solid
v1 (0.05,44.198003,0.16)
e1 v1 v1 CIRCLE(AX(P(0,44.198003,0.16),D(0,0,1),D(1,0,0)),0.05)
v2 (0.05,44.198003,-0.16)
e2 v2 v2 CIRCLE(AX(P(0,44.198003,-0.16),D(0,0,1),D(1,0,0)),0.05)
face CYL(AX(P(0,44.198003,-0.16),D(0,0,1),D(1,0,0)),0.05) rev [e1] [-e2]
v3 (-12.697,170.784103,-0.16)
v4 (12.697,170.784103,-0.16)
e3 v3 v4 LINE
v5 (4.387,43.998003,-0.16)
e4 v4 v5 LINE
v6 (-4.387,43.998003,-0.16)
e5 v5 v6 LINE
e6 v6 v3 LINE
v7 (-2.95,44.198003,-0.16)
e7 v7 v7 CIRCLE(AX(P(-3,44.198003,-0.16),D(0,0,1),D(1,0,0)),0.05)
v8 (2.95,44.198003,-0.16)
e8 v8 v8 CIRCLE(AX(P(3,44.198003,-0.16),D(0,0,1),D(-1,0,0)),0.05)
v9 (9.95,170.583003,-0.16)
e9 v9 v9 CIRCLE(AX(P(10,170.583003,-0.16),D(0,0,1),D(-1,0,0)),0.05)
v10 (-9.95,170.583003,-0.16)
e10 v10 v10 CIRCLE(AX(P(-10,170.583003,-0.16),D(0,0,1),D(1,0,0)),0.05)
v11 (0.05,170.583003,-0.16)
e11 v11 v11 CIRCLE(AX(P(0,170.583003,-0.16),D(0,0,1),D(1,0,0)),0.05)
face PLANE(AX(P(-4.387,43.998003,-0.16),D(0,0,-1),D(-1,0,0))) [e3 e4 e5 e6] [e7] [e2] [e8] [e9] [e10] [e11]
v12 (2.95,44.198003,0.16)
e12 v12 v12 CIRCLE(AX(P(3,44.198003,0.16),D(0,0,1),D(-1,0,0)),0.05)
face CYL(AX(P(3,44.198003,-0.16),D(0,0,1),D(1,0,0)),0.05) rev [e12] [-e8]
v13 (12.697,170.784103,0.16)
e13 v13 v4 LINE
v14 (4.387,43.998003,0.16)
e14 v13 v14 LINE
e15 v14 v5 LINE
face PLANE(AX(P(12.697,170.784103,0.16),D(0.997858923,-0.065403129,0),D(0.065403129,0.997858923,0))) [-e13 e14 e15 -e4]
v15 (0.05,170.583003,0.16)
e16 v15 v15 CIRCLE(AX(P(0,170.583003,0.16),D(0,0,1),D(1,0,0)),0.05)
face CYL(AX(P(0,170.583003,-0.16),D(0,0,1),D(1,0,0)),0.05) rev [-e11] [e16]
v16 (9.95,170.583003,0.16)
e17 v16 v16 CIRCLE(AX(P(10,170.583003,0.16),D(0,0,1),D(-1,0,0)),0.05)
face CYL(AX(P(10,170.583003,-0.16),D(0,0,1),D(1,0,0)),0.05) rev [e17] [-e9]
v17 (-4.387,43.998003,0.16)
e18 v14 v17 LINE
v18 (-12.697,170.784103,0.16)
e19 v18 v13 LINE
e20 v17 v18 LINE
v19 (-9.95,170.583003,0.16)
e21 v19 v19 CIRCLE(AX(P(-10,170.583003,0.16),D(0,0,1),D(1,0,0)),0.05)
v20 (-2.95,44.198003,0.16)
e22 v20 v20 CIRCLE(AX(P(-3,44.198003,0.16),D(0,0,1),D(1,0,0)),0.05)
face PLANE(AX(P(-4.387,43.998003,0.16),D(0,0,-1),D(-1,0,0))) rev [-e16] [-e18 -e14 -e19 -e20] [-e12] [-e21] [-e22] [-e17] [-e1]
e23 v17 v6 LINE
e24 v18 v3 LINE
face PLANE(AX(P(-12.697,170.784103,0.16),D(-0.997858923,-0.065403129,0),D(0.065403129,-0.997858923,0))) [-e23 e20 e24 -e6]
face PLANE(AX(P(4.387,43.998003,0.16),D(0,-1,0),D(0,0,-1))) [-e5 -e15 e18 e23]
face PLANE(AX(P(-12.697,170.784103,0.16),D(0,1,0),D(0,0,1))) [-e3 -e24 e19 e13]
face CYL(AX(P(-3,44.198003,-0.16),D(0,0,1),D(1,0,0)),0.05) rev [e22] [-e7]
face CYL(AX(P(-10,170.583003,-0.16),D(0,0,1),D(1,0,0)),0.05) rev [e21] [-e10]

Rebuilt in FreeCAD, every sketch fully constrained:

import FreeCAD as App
import Part
import Sketcher

V = App.Vector
Q = App.Units.Quantity

doc = App.newDocument("Part")
params = doc.addObject("Spreadsheet::Sheet", "Params")
for row, (alias, value) in enumerate([
    ("pad1_length", "0.32 mm"),
    ("sketch2_diameter", "0.1 mm"),
], start=1):
    params.set(f"A{row}", alias)
    params.set(f"B{row}", "=" + value)
    params.setAlias(f"B{row}", alias)

body = doc.addObject("PartDesign::Body", "Body")

sketch1 = body.newObject("Sketcher::SketchObject", "Sketch")
sketch1.AttachmentSupport = (doc.getObject("XY_Plane"), [""])
sketch1.MapMode = "FlatFace"
sketch1.addGeometry([
    Part.LineSegment(V(4.387, 43.998003, 0), V(-4.387, 43.998003, 0)),
    Part.LineSegment(V(-4.387, 43.998003, 0), V(-12.697, 170.784103, 0)),
    Part.LineSegment(V(-12.697, 170.784103, 0), V(12.697, 170.784103, 0)),
    Part.LineSegment(V(12.697, 170.784103, 0), V(4.387, 43.998003, 0)),
], False)
sketch1.addConstraint([
    Sketcher.Constraint("Coincident", 0, 2, 1, 1),
    Sketcher.Constraint("Coincident", 1, 2, 2, 1),
    Sketcher.Constraint("Coincident", 2, 2, 3, 1),
    Sketcher.Constraint("Coincident", 3, 2, 0, 1),
    Sketcher.Constraint("Horizontal", 0),
    Sketcher.Constraint("Horizontal", 2),
    Sketcher.Constraint("Equal", 1, 3),
    Sketcher.Constraint("Angle", 1, Q("93.75 deg")),
    Sketcher.Constraint("DistanceX", 0, 2, 0, 1, Q("8.774 mm")),
    Sketcher.Constraint("DistanceX", 2, 1, 2, 2, Q("25.394 mm")),
    Sketcher.Constraint("DistanceX", 0, 2, -1, 1, Q("4.387 mm")),
    Sketcher.Constraint("DistanceY", -1, 1, 0, 2, Q("43.998003 mm")),
])
pad1 = body.newObject("PartDesign::Pad", "Pad")
pad1.Profile = sketch1
pad1.setExpression("Length", "Params.pad1_length")
pad1.Midplane = True

sketch2 = body.newObject("Sketcher::SketchObject", "Sketch001")
sketch2.AttachmentSupport = (doc.getObject("XY_Plane"), [""])
sketch2.MapMode = "FlatFace"
sketch2.AttachmentOffset = App.Placement(V(0, 0, 0.16), App.Rotation())
sketch2.addGeometry([
    Part.Circle(V(-3, 44.198003, 0), V(0, 0, 1), 0.05),
    Part.Circle(V(0, 44.198003, 0), V(0, 0, 1), 0.05),
    Part.Circle(V(3, 44.198003, 0), V(0, 0, 1), 0.05),
    Part.Circle(V(0, 170.583003, 0), V(0, 0, 1), 0.05),
    Part.Circle(V(-10, 170.583003, 0), V(0, 0, 1), 0.05),
    Part.Circle(V(10, 170.583003, 0), V(0, 0, 1), 0.05),
], False)
sketch2.addConstraint([
    Sketcher.Constraint("Equal", 0, 1),
    Sketcher.Constraint("Equal", 1, 2),
    Sketcher.Constraint("Equal", 2, 3),
    Sketcher.Constraint("Equal", 3, 4),
    Sketcher.Constraint("Equal", 4, 5),
    Sketcher.Constraint("Symmetric", 0, 3, 2, 3, -2),
    Sketcher.Constraint("Symmetric", 4, 3, 5, 3, -2),
    Sketcher.Constraint("PointOnObject", 1, 3, -2),
    Sketcher.Constraint("PointOnObject", 3, 3, -2),
    Sketcher.Constraint("Horizontal", 0, 3, 1, 3),
    Sketcher.Constraint("Horizontal", 3, 3, 4, 3),
    Sketcher.Constraint("Diameter", 0, Q("0.1 mm")),
    Sketcher.Constraint("DistanceX", 0, 3, -1, 1, Q("3 mm")),
    Sketcher.Constraint("DistanceX", 4, 3, -1, 1, Q("10 mm")),
    Sketcher.Constraint("DistanceY", 1, 3, 3, 3, Q("126.385 mm")),
    Sketcher.Constraint("DistanceY", -1, 1, 0, 3, Q("44.198003 mm")),
])
sketch2.setExpression("Constraints[11]", "Params.sketch2_diameter")
pocket1 = body.newObject("PartDesign::Pocket", "Pocket")
pocket1.Profile = sketch2
pocket1.Type = "ThroughAll"

doc.recompute()
